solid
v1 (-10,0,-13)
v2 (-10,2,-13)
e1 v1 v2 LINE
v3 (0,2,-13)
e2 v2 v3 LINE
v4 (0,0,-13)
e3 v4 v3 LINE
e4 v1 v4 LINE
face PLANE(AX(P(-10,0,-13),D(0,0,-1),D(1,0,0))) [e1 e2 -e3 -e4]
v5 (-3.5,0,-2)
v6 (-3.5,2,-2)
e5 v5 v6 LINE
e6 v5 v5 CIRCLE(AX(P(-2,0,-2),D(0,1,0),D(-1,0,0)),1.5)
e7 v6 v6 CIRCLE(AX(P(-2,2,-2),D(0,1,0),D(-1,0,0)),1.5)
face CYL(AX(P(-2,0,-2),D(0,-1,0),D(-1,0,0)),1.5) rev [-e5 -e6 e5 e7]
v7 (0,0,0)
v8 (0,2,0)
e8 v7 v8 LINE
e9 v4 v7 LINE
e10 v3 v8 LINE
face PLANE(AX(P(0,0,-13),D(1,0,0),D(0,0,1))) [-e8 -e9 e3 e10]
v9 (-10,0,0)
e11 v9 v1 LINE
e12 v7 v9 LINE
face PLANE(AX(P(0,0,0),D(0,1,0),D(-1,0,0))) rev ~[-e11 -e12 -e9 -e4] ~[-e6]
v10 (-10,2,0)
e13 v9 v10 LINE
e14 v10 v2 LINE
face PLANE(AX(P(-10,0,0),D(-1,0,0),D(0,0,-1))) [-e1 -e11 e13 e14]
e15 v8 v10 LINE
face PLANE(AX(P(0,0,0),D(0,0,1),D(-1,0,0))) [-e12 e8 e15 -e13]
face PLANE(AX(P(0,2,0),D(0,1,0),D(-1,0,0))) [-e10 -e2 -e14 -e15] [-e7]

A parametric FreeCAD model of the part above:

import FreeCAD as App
import Part
import Sketcher

V = App.Vector


def add_polygon(sketch, points):
    """Adds a closed chain of lines whose ends are joined by coincident constraints."""
    first, n = sketch.GeometryCount, len(points)
    for a, b in zip(points, points[1:] + points[:1]):
        sketch.addGeometry(Part.LineSegment(App.Vector(*a, 0), App.Vector(*b, 0)), False)
    for i in range(n):
        sketch.addConstraint(Sketcher.Constraint("Coincident", first + i, 2, first + (i + 1) % n, 1))

doc = App.newDocument("Part")
body = doc.addObject("PartDesign::Body", "Body")

sketch1 = body.newObject("Sketcher::SketchObject", "Sketch")
sketch1.AttachmentSupport = (doc.getObject("XZ_Plane"), [""])
sketch1.MapMode = "FlatFace"
add_polygon(sketch1, [(-10, 0), (0, 0), (0, -13), (-10, -13)])
sketch1.addGeometry(Part.Circle(V(-2, -2, 0), V(0, 0, 1), 1.5), False)
sketch1.addConstraint(Sketcher.Constraint("Horizontal", 0))
sketch1.addConstraint(Sketcher.Constraint("Vertical", 1))
sketch1.addConstraint(Sketcher.Constraint("Horizontal", 2))
sketch1.addConstraint(Sketcher.Constraint("Vertical", 3))
sketch1.addConstraint(Sketcher.Constraint("Coincident", 0, 2, -1, 1))
sketch1.addConstraint(Sketcher.Constraint("Diameter", 4, 3.0))
sketch1.addConstraint(Sketcher.Constraint("DistanceX", 0, 1, 0, 2, 10.0))
sketch1.addConstraint(Sketcher.Constraint("DistanceY", 1, 2, 1, 1, 13.0))
sketch1.addConstraint(Sketcher.Constraint("DistanceX", 4, 3, -1, 1, 2.0))
sketch1.addConstraint(Sketcher.Constraint("DistanceY", 4, 3, -1, 1, 2.0))
pad1 = body.newObject("PartDesign::Pad", "Pad")
pad1.Profile = sketch1
pad1.Length = 2
pad1.Reversed = True

doc.recompute()
